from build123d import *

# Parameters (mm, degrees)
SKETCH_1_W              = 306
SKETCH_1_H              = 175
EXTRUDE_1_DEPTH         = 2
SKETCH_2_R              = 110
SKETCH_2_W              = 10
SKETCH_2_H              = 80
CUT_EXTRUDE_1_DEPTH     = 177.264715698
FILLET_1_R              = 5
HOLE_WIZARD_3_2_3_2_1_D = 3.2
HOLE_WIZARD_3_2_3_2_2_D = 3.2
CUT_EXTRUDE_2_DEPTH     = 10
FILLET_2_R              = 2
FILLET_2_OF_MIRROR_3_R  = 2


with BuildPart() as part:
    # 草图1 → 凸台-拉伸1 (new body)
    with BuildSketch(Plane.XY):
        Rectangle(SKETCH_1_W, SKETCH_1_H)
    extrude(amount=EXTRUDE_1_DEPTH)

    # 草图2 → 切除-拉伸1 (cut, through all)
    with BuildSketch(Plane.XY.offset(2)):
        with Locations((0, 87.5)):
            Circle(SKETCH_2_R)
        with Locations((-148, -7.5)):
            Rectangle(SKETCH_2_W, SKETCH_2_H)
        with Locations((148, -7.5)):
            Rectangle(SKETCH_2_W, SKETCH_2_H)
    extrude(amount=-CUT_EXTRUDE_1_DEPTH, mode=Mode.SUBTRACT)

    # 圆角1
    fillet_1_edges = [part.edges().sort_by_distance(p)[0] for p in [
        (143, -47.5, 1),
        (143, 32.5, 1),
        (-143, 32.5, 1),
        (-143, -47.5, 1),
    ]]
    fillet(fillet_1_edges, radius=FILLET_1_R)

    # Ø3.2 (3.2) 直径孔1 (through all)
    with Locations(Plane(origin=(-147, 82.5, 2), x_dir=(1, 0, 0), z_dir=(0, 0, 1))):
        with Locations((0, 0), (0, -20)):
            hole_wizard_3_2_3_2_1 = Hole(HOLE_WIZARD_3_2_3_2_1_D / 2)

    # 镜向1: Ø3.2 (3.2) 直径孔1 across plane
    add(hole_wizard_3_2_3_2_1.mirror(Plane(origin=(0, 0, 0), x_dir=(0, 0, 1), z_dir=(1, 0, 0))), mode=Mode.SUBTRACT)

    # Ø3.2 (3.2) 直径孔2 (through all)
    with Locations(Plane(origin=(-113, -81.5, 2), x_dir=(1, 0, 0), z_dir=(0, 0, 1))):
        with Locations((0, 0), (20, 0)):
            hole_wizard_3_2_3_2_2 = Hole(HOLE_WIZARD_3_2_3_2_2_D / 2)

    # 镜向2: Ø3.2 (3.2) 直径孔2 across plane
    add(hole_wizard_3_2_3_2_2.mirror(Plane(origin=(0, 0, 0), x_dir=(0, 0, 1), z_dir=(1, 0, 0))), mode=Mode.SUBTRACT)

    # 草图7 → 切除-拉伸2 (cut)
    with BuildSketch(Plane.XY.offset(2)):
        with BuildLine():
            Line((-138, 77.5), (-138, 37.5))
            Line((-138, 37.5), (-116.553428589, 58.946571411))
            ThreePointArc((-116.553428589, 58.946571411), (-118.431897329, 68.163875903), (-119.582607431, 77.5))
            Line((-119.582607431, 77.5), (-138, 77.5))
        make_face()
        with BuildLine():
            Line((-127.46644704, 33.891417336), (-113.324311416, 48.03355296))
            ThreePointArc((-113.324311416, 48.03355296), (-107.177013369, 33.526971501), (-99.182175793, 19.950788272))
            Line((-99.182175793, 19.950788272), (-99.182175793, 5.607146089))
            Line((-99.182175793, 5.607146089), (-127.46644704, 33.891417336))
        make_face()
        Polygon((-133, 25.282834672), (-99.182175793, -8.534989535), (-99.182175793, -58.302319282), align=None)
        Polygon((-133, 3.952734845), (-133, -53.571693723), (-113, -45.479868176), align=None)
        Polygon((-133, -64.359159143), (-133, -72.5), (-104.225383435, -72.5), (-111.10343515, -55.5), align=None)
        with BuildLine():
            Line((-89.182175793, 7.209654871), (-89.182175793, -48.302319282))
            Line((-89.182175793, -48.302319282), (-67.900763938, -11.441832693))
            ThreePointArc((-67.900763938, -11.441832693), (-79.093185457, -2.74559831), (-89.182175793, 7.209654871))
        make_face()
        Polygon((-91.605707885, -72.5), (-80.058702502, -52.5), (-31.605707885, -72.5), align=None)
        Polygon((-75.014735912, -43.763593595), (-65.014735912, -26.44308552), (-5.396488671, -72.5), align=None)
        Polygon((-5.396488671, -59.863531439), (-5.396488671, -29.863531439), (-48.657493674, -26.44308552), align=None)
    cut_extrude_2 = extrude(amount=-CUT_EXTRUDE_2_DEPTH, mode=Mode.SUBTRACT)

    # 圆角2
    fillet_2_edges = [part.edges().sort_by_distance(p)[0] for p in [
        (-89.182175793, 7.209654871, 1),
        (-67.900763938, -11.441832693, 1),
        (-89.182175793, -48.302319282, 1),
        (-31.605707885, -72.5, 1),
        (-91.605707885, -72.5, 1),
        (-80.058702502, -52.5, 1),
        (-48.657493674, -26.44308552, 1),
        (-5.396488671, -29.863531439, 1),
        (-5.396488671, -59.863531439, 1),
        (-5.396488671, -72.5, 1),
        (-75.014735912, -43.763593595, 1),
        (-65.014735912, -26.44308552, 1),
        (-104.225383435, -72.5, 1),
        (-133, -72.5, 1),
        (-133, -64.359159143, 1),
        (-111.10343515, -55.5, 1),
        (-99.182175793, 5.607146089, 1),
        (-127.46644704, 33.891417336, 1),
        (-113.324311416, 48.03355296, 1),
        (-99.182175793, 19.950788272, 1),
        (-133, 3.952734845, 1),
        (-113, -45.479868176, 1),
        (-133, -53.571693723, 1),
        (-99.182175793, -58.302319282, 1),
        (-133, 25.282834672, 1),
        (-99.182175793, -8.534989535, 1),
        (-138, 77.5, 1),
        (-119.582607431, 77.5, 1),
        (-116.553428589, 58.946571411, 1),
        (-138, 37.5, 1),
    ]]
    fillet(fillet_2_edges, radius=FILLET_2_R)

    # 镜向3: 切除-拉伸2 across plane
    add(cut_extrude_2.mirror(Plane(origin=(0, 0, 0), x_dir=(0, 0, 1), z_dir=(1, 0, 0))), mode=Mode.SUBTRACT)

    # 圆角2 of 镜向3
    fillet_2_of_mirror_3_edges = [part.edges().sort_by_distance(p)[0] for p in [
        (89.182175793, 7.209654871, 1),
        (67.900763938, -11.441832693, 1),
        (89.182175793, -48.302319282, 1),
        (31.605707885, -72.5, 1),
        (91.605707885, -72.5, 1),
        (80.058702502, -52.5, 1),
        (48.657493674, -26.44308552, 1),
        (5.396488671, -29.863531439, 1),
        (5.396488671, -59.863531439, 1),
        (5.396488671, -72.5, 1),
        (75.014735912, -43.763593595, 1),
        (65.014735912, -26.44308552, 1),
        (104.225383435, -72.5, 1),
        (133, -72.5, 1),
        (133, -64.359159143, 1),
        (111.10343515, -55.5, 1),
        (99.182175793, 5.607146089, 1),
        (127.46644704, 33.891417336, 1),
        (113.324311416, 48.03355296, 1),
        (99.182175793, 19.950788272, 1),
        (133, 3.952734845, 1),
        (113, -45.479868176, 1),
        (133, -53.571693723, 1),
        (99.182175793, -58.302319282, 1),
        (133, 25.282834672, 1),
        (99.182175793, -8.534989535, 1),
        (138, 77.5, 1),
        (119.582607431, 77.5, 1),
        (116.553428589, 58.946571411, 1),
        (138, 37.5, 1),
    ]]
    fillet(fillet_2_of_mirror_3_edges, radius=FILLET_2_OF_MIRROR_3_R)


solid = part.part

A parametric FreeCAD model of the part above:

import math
import FreeCAD as App
import Part
import Sketcher
Q = App.Units.Quantity


def edges_at(feature, points):
    """Names of the edges that pass closest to the given points."""
    edges = feature.Shape.Edges
    near = lambda p: min(range(len(edges)), key=lambda i: edges[i].distToShape(Part.Vertex(*p))[0])
    return sorted({f"Edge{near(p) + 1}" for p in points})


def add_polygon(sketch, points):
    """Adds a closed chain of lines whose ends are joined by coincident constraints."""
    first, n = sketch.GeometryCount, len(points)
    for a, b in zip(points, points[1:] + points[:1]):
        sketch.addGeometry(Part.LineSegment(App.Vector(*a, 0), App.Vector(*b, 0)), False)
    for i in range(n):
        sketch.addConstraint(Sketcher.Constraint("Coincident", first + i, 2, first + (i + 1) % n, 1))

doc = App.newDocument("Part")
body = doc.addObject("PartDesign::Body", "Body")

sketch1 = body.newObject("Sketcher::SketchObject", "Sketch")
sketch1.AttachmentSupport = (doc.getObject("XY_Plane"), [""])
sketch1.MapMode = "FlatFace"
add_polygon(sketch1, [(-153, 87.5), (-153, -87.5), (153, -87.5), (153, 87.5)])
sketch1.addConstraint([
    Sketcher.Constraint("Vertical", 0),
    Sketcher.Constraint("Horizontal", 1),
    Sketcher.Constraint("Vertical", 2),
    Sketcher.Constraint("Horizontal", 3),
    Sketcher.Constraint("Symmetric", 0, 2, 2, 2, -1, 1),
    Sketcher.Constraint("DistanceX", 1, 1, 1, 2, Q("306 mm")),
    Sketcher.Constraint("DistanceY", 0, 2, 0, 1, Q("175 mm")),
])
pad1 = body.newObject("PartDesign::Pad", "Pad")
pad1.Profile = sketch1
pad1.Length = 2

sketch2 = body.newObject("Sketcher::SketchObject", "Sketch001")
sketch2.AttachmentSupport = (doc.getObject("XY_Plane"), [""])
sketch2.MapMode = "FlatFace"
sketch2.AttachmentOffset = App.Placement(App.Vector(0, 0, 2), App.Rotation())
sketch2.addGeometry(Part.Circle(App.Vector(0, 87.5, 0), App.Vector(0, 0, 1), 110), False)
add_polygon(sketch2, [(-153, 32.5), (-153, -47.5), (-143, -47.5), (-143, 32.5)])
add_polygon(sketch2, [(143, 32.5), (143, -47.5), (153, -47.5), (153, 32.5)])
sketch2.addConstraint([
    Sketcher.Constraint("Vertical", 1),
    Sketcher.Constraint("Horizontal", 2),
    Sketcher.Constraint("Vertical", 3),
    Sketcher.Constraint("Horizontal", 4),
    Sketcher.Constraint("Vertical", 5),
    Sketcher.Constraint("Horizontal", 6),
    Sketcher.Constraint("Vertical", 7),
    Sketcher.Constraint("Horizontal", 8),
    Sketcher.Constraint("Symmetric", 2, 2, 5, 2, -2),
    Sketcher.Constraint("Symmetric", 4, 2, 7, 2, -2),
    Sketcher.Constraint("PointOnObject", 0, 3, -2),
    Sketcher.Constraint("Diameter", 0, Q("220 mm")),
    Sketcher.Constraint("DistanceX", 2, 1, 2, 2, Q("10 mm")),
    Sketcher.Constraint("DistanceY", 1, 2, 1, 1, Q("80 mm")),
    Sketcher.Constraint("DistanceX", 1, 2, -1, 1, Q("153 mm")),
    Sketcher.Constraint("DistanceY", 1, 2, 0, 3, Q("135 mm")),
    Sketcher.Constraint("DistanceY", -1, 1, 0, 3, Q("87.5 mm")),
])
pocket1 = body.newObject("PartDesign::Pocket", "Pocket")
pocket1.Profile = sketch2
pocket1.Type = "ThroughAll"
doc.recompute()

fillet = body.newObject("PartDesign::Fillet", "Fillet")
fillet.Base = (pocket1, edges_at(pocket1, [
    (143, -47.5, 1),
    (143, 32.5, 1),
    (-143, 32.5, 1),
    (-143, -47.5, 1),
]))
fillet.Radius = 5

sketch3 = body.newObject("Sketcher::SketchObject", "Sketch002")
sketch3.AttachmentSupport = (doc.getObject("XY_Plane"), [""])
sketch3.MapMode = "FlatFace"
sketch3.AttachmentOffset = App.Placement(App.Vector(0, 0, 2), App.Rotation())
sketch3.addGeometry([
    Part.Circle(App.Vector(-147, 82.5, 0), App.Vector(0, 0, 1), 1.6),
    Part.Circle(App.Vector(-147, 62.5, 0), App.Vector(0, 0, 1), 1.6),
], False)
sketch3.addConstraint([
    Sketcher.Constraint("Equal", 0, 1),
    Sketcher.Constraint("Vertical", 0, 3, 1, 3),
    Sketcher.Constraint("Diameter", 0, Q("3.2 mm")),
    Sketcher.Constraint("DistanceX", 0, 3, -1, 1, Q("147 mm")),
    Sketcher.Constraint("DistanceY", 1, 3, 0, 3, Q("20 mm")),
    Sketcher.Constraint("DistanceY", -1, 1, 0, 3, Q("82.5 mm")),
])
doc.recompute()
hole = body.newObject("PartDesign::Hole", "Hole")
hole.Profile = sketch3
hole.ThreadType = "None"
hole.Diameter = 3.2
hole.DepthType = "ThroughAll"
doc.recompute()

mirrored = body.newObject("PartDesign::Mirrored", "Mirrored")
mirrored.Originals = [hole]
mirrored.MirrorPlane = (doc.getObject("YZ_Plane"), [""])
body.Tip = mirrored

sketch4 = body.newObject("Sketcher::SketchObject", "Sketch003")
sketch4.AttachmentSupport = (doc.getObject("XY_Plane"), [""])
sketch4.MapMode = "FlatFace"
sketch4.AttachmentOffset = App.Placement(App.Vector(0, 0, 2), App.Rotation())
sketch4.addGeometry([
    Part.Circle(App.Vector(-113, -81.5, 0), App.Vector(0, 0, 1), 1.6),
    Part.Circle(App.Vector(-93, -81.5, 0), App.Vector(0, 0, 1), 1.6),
], False)
sketch4.addConstraint([
    Sketcher.Constraint("Equal", 0, 1),
    Sketcher.Constraint("Horizontal", 0, 3, 1, 3),
    Sketcher.Constraint("Diameter", 0, Q("3.2 mm")),
    Sketcher.Constraint("DistanceX", 0, 3, -1, 1, Q("113 mm")),
    Sketcher.Constraint("DistanceX", 1, 3, -1, 1, Q("93 mm")),
    Sketcher.Constraint("DistanceY", 0, 3, -1, 1, Q("81.5 mm")),
])
doc.recompute()
hole2 = body.newObject("PartDesign::Hole", "Hole001")
hole2.Profile = sketch4
hole2.ThreadType = "None"
hole2.Diameter = 3.2
hole2.DepthType = "ThroughAll"
doc.recompute()

mirrored2 = body.newObject("PartDesign::Mirrored", "Mirrored001")
mirrored2.Originals = [hole2]
mirrored2.MirrorPlane = (doc.getObject("YZ_Plane"), [""])
body.Tip = mirrored2

sketch5 = body.newObject("Sketcher::SketchObject", "Sketch004")
sketch5.AttachmentSupport = (doc.getObject("XY_Plane"), [""])
sketch5.MapMode = "FlatFace"
sketch5.AttachmentOffset = App.Placement(App.Vector(0, 0, 2), App.Rotation())
sketch5.addGeometry(Part.LineSegment(App.Vector(-138, 77.5, 0), App.Vector(-138, 37.5, 0)), False)
sketch5.addGeometry(Part.LineSegment(App.Vector(-138, 37.5, 0), App.Vector(-116.553429, 58.946571, 0)), False)
sketch5.addGeometry(Part.ArcOfCircle(Part.Circle(App.Vector(0, 87.5, 0), App.Vector(0, 0, 1), 120), math.radians(-175.219808), math.radians(-166.234702)), False)
sketch5.addGeometry(Part.LineSegment(App.Vector(-119.582607, 77.5, 0), App.Vector(-138, 77.5, 0)), False)
sketch5.addGeometry(Part.LineSegment(App.Vector(-113.324311, 48.033553, 0), App.Vector(-127.466447, 33.891417, 0)), False)
sketch5.addGeometry(Part.LineSegment(App.Vector(-127.466447, 33.891417, 0), App.Vector(-99.182176, 5.607146, 0)), False)
sketch5.addGeometry(Part.LineSegment(App.Vector(-99.182176, 5.607146, 0), App.Vector(-99.182176, 19.950788, 0)), False)
sketch5.addGeometry(Part.ArcOfCircle(Part.Circle(App.Vector(0, 87.5, 0), App.Vector(0, 0, 1), 120), math.radians(-160.798762), math.radians(-145.74271)), False)
add_polygon(sketch5, [(-99.182176, -8.53499), (-133, 25.282835), (-99.182176, -58.302319)])
add_polygon(sketch5, [(-133, 3.952735), (-133, -53.571694), (-113, -45.479868)])
add_polygon(sketch5, [(-133, -64.359159), (-133, -72.5), (-104.225383, -72.5), (-111.103435, -55.5)])
sketch5.addGeometry(Part.LineSegment(App.Vector(-89.182176, 7.209655, 0), App.Vector(-89.182176, -48.302319, 0)), False)
sketch5.addGeometry(Part.LineSegment(App.Vector(-89.182176, -48.302319, 0), App.Vector(-67.900764, -11.441833, 0)), False)
sketch5.addGeometry(Part.ArcOfCircle(Part.Circle(App.Vector(0, 87.5, 0), App.Vector(0, 0, 1), 120), math.radians(-138.003423), math.radians(-124.460622)), False)
add_polygon(sketch5, [(-80.058703, -52.5), (-91.605708, -72.5), (-31.605708, -72.5)])
add_polygon(sketch5, [(-65.014736, -26.443086), (-75.014736, -43.763594), (-5.396489, -72.5)])
add_polygon(sketch5, [(-5.396489, -59.863531), (-5.396489, -29.863531), (-48.657494, -26.443086)])
sketch5.addConstraint([
    Sketcher.Constraint("Coincident", 0, 2, 1, 1),
    Sketcher.Constraint("Coincident", 1, 2, 2, 2),
    Sketcher.Constraint("Coincident", 2, 1, 3, 1),
    Sketcher.Constraint("Coincident", 3, 2, 0, 1),
    Sketcher.Constraint("Coincident", 4, 2, 5, 1),
    Sketcher.Constraint("Coincident", 5, 2, 6, 1),
    Sketcher.Constraint("Coincident", 6, 2, 7, 2),
    Sketcher.Constraint("Coincident", 7, 1, 4, 1),
    Sketcher.Constraint("Coincident", 18, 2, 19, 1),
    Sketcher.Constraint("Coincident", 19, 2, 20, 2),
    Sketcher.Constraint("Coincident", 20, 1, 18, 1),
    Sketcher.Constraint("Vertical", 0),
    Sketcher.Constraint("Horizontal", 3),
    Sketcher.Constraint("Vertical", 6),
    Sketcher.Constraint("Vertical", 10),
    Sketcher.Constraint("Vertical", 11),
    Sketcher.Constraint("Vertical", 14),
    Sketcher.Constraint("Horizontal", 15),
    Sketcher.Constraint("Vertical", 18),
    Sketcher.Constraint("Horizontal", 22),
    Sketcher.Constraint("Vertical", 27),
    Sketcher.Constraint("Coincident", 7, 3, 2, 3),
    Sketcher.Constraint("Coincident", 20, 3, 2, 3),
    Sketcher.Constraint("Equal", 2, 7),
    Sketcher.Constraint("Equal", 7, 20),
    Sketcher.Constraint("PointOnObject", 2, 3, -2),
    Sketcher.Constraint("Parallel", 1, 4),
    Sketcher.Constraint("Perpendicular", 4, 5),
    Sketcher.Constraint("Parallel", 5, 8),
    Sketcher.Constraint("Perpendicular", 9, 12),
    Sketcher.Constraint("Perpendicular", 12, 13),
    Sketcher.Constraint("Parallel", 13, 16),
    Sketcher.Constraint("Perpendicular", 16, 17),
    Sketcher.Constraint("Parallel", 19, 21),
    Sketcher.Constraint("Parallel", 21, 24),
    Sketcher.Constraint("Parallel", 23, 25),
    Sketcher.Constraint("Parallel", 26, 29),
    Sketcher.Constraint("Horizontal", 15, 2, 21, 2),
    Sketcher.Constraint("Horizontal", 22, 2, 25, 2),
    Sketcher.Constraint("Horizontal", 26, 2, 28, 2),
    Sketcher.Constraint("Vertical", 6, 2, 9, 2),
    Sketcher.Constraint("Vertical", 8, 2, 11, 2),
    Sketcher.Constraint("Vertical", 13, 2, 14, 2),
    Sketcher.Constraint("Vertical", 25, 2, 27, 2),
    Sketcher.Constraint("Equal", 4, 24),
    Sketcher.Constraint("Radius", 2, Q("120 mm")),
    Sketcher.Constraint("DistanceX", 22, 1, 22, 2, Q("60 mm")),
    Sketcher.Constraint("DistanceY", 0, 2, 0, 1, Q("40 mm")),
    Sketcher.Constraint("DistanceY", 27, 1, 27, 2, Q("30 mm")),
    Sketcher.Constraint("Angle", 1, Q("45 deg")),
    Sketcher.Constraint("Angle", 19, Q("60 deg")),
    Sketcher.Constraint("Distance", 4, Q("20 mm")),
    Sketcher.Constraint("Distance", 5, Q("40 mm")),
    Sketcher.Constraint("DistanceX", 0, 2, -1, 1, Q("138 mm")),
    Sketcher.Constraint("DistanceX", 8, 2, -1, 1, Q("133 mm")),
    Sketcher.Constraint("DistanceX", 12, 2, -1, 1, Q("113 mm")),
    Sketcher.Constraint("DistanceY", 0, 2, 2, 3, Q("50 mm")),
    Sketcher.Constraint("DistanceY", 15, 2, 16, 2, Q("17 mm")),
    Sketcher.Constraint("DistanceX", 9, 2, 18, 2, Q("10 mm")),
    Sketcher.Constraint("DistanceY", 9, 2, 18, 2, Q("10 mm")),
    Sketcher.Constraint("DistanceY", 21, 2, 23, 2, Q("20 mm")),
    Sketcher.Constraint("DistanceY", -1, 1, 2, 3, Q("87.5 mm")),
    Sketcher.Constraint("DistanceY", 14, 2, -1, 1, Q("72.5 mm")),
    Sketcher.Constraint("DistanceY", 10, 1, 10, 2, Q("49.76733 mm")),
    Sketcher.Constraint("DistanceY", 11, 2, 11, 1, Q("57.524429 mm")),
    Sketcher.Constraint("DistanceY", 14, 2, 14, 1, Q("8.140841 mm")),
    Sketcher.Constraint("DistanceY", 13, 2, 8, 2, Q("21.3301 mm")),
    Sketcher.Constraint("DistanceY", 27, 2, 19, 2, Q("18.421699 mm")),
    Sketcher.Constraint("Distance", 26, Q("75.336411 mm")),
    Sketcher.Constraint("DistanceY", 18, 2, 18, 1, Q("55.511974 mm")),
    Sketcher.Constraint("DistanceX", 25, 2, -1, 1, Q("5.396489 mm")),
    Sketcher.Constraint("DistanceX", 15, 2, 23, 2, Q("24.166681 mm")),
])
pocket2 = body.newObject("PartDesign::Pocket", "Pocket001")
pocket2.Profile = sketch5
pocket2.Length = 10
doc.recompute()

fillet2 = body.newObject("PartDesign::Fillet", "Fillet001")
fillet2.Base = (pocket2, edges_at(pocket2, [
    (-89.182, 7.21, 1),
    (-67.901, -11.442, 1),
    (-89.182, -48.302, 1),
    (-31.606, -72.5, 1),
    (-91.606, -72.5, 1),
    (-80.059, -52.5, 1),
    (-48.657, -26.443, 1),
    (-5.396, -29.864, 1),
    (-5.396, -59.864, 1),
    (-5.396, -72.5, 1),
    (-75.015, -43.764, 1),
    (-65.015, -26.443, 1),
    (-104.225, -72.5, 1),
    (-133, -72.5, 1),
    (-133, -64.359, 1),
    (-111.103, -55.5, 1),
    (-99.182, 5.607, 1),
    (-127.466, 33.891, 1),
    (-113.324, 48.034, 1),
    (-99.182, 19.951, 1),
    (-133, 3.953, 1),
    (-113, -45.48, 1),
    (-133, -53.572, 1),
    (-99.182, -58.302, 1),
    (-133, 25.283, 1),
    (-99.182, -8.535, 1),
    (-138, 77.5, 1),
    (-119.583, 77.5, 1),
    (-116.553, 58.947, 1),
    (-138, 37.5, 1),
]))
fillet2.Radius = 2
doc.recompute()

mirrored3 = body.newObject("PartDesign::Mirrored", "Mirrored002")
mirrored3.Originals = [pocket2]
mirrored3.MirrorPlane = (doc.getObject("YZ_Plane"), [""])
body.Tip = mirrored3
doc.recompute()

fillet3 = body.newObject("PartDesign::Fillet", "Fillet002")
fillet3.Base = (mirrored3, edges_at(mirrored3, [
    (89.182, 7.21, 1),
    (67.901, -11.442, 1),
    (89.182, -48.302, 1),
    (31.606, -72.5, 1),
    (91.606, -72.5, 1),
    (80.059, -52.5, 1),
    (48.657, -26.443, 1),
    (5.396, -29.864, 1),
    (5.396, -59.864, 1),
    (5.396, -72.5, 1),
    (75.015, -43.764, 1),
    (65.015, -26.443, 1),
    (104.225, -72.5, 1),
    (133, -72.5, 1),
    (133, -64.359, 1),
    (111.103, -55.5, 1),
    (99.182, 5.607, 1),
    (127.466, 33.891, 1),
    (113.324, 48.034, 1),
    (99.182, 19.951, 1),
    (133, 3.953, 1),
    (113, -45.48, 1),
    (133, -53.572, 1),
    (99.182, -58.302, 1),
    (133, 25.283, 1),
    (99.182, -8.535, 1),
    (138, 77.5, 1),
    (119.583, 77.5, 1),
    (116.553, 58.947, 1),
    (138, 37.5, 1),
]))
fillet3.Radius = 2

doc.recompute()
